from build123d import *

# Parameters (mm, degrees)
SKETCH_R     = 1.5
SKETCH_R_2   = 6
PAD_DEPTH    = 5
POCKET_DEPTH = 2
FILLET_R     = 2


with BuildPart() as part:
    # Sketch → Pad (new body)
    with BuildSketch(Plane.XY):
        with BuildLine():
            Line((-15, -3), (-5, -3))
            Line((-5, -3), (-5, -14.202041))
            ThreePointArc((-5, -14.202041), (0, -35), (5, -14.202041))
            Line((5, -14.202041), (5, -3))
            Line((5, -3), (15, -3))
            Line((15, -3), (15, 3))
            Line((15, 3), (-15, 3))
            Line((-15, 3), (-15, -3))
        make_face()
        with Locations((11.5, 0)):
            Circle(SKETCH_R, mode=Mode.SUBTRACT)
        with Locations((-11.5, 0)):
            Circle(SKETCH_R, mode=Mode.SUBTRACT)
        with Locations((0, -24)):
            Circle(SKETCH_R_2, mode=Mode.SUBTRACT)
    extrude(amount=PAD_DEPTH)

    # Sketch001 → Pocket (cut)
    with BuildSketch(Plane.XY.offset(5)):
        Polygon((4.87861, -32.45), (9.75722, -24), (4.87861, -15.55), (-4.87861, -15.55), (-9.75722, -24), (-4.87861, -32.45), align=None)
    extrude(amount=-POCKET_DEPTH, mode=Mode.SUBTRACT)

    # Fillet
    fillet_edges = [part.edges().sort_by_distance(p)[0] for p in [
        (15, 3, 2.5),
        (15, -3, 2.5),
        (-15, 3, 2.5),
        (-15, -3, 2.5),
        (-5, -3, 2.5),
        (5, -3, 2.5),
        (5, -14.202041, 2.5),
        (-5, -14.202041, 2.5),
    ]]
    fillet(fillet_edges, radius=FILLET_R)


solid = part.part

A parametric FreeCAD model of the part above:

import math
import FreeCAD as App
import Part
import Sketcher
Q = App.Units.Quantity


def edges_at(feature, points):
    """Names of the edges that pass closest to the given points."""
    edges = feature.Shape.Edges
    near = lambda p: min(range(len(edges)), key=lambda i: edges[i].distToShape(Part.Vertex(*p))[0])
    return sorted({f"Edge{near(p) + 1}" for p in points})


def add_polygon(sketch, points):
    """Adds a closed chain of lines whose ends are joined by coincident constraints."""
    first, n = sketch.GeometryCount, len(points)
    for a, b in zip(points, points[1:] + points[:1]):
        sketch.addGeometry(Part.LineSegment(App.Vector(*a, 0), App.Vector(*b, 0)), False)
    for i in range(n):
        sketch.addConstraint(Sketcher.Constraint("Coincident", first + i, 2, first + (i + 1) % n, 1))

doc = App.newDocument("Part")
body = doc.addObject("PartDesign::Body", "Body")

# Sketch on XY plane
sketch1 = body.newObject("Sketcher::SketchObject", "Sketch")
sketch1.AttachmentSupport = (doc.getObject("XY_Plane"), [""])
sketch1.MapMode = "FlatFace"
sketch1.addGeometry([
    Part.LineSegment(App.Vector(-15, -3, 0), App.Vector(-5, -3, 0)),  # 0
    Part.LineSegment(App.Vector(-5, -3, 0), App.Vector(-5, -14.202041, 0)),  # 1
    Part.ArcOfCircle(Part.Circle(App.Vector(0, -24, 0), App.Vector(0, 0, 1), 11), math.radians(117.035692), math.radians(422.964308)),  # 2
    Part.LineSegment(App.Vector(5, -14.202041, 0), App.Vector(5, -3, 0)),  # 3
    Part.LineSegment(App.Vector(5, -3, 0), App.Vector(15, -3, 0)),  # 4
    Part.LineSegment(App.Vector(15, -3, 0), App.Vector(15, 3, 0)),  # 5
    Part.LineSegment(App.Vector(15, 3, 0), App.Vector(-15, 3, 0)),  # 6
    Part.LineSegment(App.Vector(-15, 3, 0), App.Vector(-15, -3, 0)),  # 7
    Part.Circle(App.Vector(0, -24, 0), App.Vector(0, 0, 1), 6),  # 8
    Part.Circle(App.Vector(-11.5, 0, 0), App.Vector(0, 0, 1), 1.5),  # 9
    Part.Circle(App.Vector(11.5, 0, 0), App.Vector(0, 0, 1), 1.5),  # 10
], False)
sketch1.addConstraint([
    Sketcher.Constraint("Coincident", 0, 2, 1, 1),
    Sketcher.Constraint("Coincident", 1, 2, 2, 1),
    Sketcher.Constraint("Coincident", 2, 2, 3, 1),
    Sketcher.Constraint("Coincident", 3, 2, 4, 1),
    Sketcher.Constraint("Coincident", 4, 2, 5, 1),
    Sketcher.Constraint("Coincident", 5, 2, 6, 1),
    Sketcher.Constraint("Coincident", 6, 2, 7, 1),
    Sketcher.Constraint("Coincident", 7, 2, 0, 1),
    Sketcher.Constraint("Horizontal", 0),
    Sketcher.Constraint("Vertical", 1),
    Sketcher.Constraint("Vertical", 3),
    Sketcher.Constraint("Horizontal", 4),
    Sketcher.Constraint("Vertical", 5),
    Sketcher.Constraint("Horizontal", 6),
    Sketcher.Constraint("Vertical", 7),
    Sketcher.Constraint("Coincident", 8, 3, 2, 3),
    Sketcher.Constraint("Equal", 9, 10),
    Sketcher.Constraint("Symmetric", 9, 3, 10, 3, -1, 1),
    Sketcher.Constraint("Symmetric", 4, 2, 6, 2, -1, 1),
    Sketcher.Constraint("Symmetric", 1, 2, 2, 2, -2),
    Sketcher.Constraint("PointOnObject", 9, 3, -1),
    Sketcher.Constraint("Horizontal", 0, 2, 3, 2),
    Sketcher.Constraint("Diameter", 8, Q("12 mm")),
    Sketcher.Constraint("Diameter", 9, Q("3 mm")),
    Sketcher.Constraint("Radius", 2, Q("11 mm")),
    Sketcher.Constraint("DistanceX", 0, 1, 0, 2, Q("10 mm")),
    Sketcher.Constraint("DistanceX", 6, 2, 6, 1, Q("30 mm")),
    Sketcher.Constraint("DistanceY", 5, 1, 5, 2, Q("6 mm")),
    Sketcher.Constraint("DistanceY", 2, 3, -1, 1, Q("24 mm")),
    Sketcher.Constraint("DistanceX", 9, 3, 10, 3, Q("23 mm")),
])
pad1 = body.newObject("PartDesign::Pad", "Pad")
pad1.Profile = sketch1
pad1.Length = 5

# Sketch on XY plane
sketch2 = body.newObject("Sketcher::SketchObject", "Sketch001")
sketch2.AttachmentSupport = (doc.getObject("XY_Plane"), [""])
sketch2.MapMode = "FlatFace"
sketch2.AttachmentOffset = App.Placement(App.Vector(0, 0, 5), App.Rotation())
add_polygon(sketch2, [(4.87861, -32.45), (9.75722, -24), (4.87861, -15.55), (-4.87861, -15.55), (-9.75722, -24), (-4.87861, -32.45)])  # lines 0-5
sketch2.addConstraint([
    Sketcher.Constraint("Horizontal", 2),
    Sketcher.Constraint("Horizontal", 5),
    Sketcher.Constraint("Symmetric", 0, 2, 3, 2, -2),
    Sketcher.Constraint("Parallel", 0, 3),
    Sketcher.Constraint("Parallel", 1, 4),
    Sketcher.Constraint("Vertical", 2, 2, 4, 2),
    Sketcher.Constraint("Vertical", 1, 2, 5, 2),
    Sketcher.Constraint("Angle", 0, Q("59.999999 deg")),
    Sketcher.Constraint("DistanceY", 0, 2, -1, 1, Q("24 mm")),
    Sketcher.Constraint("DistanceY", 4, 2, 2, 2, Q("16.9 mm")),
    Sketcher.Constraint("DistanceX", 2, 2, 2, 1, Q("9.75722 mm")),
])
pocket1 = body.newObject("PartDesign::Pocket", "Pocket")
pocket1.Profile = sketch2
pocket1.Length = 2
doc.recompute()

fillet = body.newObject("PartDesign::Fillet", "Fillet")
fillet.Base = (pocket1, edges_at(pocket1, [
    (15, 3, 2.5),
    (15, -3, 2.5),
    (-15, 3, 2.5),
    (-15, -3, 2.5),
    (-5, -3, 2.5),
    (5, -3, 2.5),
    (5, -14.202, 2.5),
    (-5, -14.202, 2.5),
]))
fillet.Radius = 2

doc.recompute()
